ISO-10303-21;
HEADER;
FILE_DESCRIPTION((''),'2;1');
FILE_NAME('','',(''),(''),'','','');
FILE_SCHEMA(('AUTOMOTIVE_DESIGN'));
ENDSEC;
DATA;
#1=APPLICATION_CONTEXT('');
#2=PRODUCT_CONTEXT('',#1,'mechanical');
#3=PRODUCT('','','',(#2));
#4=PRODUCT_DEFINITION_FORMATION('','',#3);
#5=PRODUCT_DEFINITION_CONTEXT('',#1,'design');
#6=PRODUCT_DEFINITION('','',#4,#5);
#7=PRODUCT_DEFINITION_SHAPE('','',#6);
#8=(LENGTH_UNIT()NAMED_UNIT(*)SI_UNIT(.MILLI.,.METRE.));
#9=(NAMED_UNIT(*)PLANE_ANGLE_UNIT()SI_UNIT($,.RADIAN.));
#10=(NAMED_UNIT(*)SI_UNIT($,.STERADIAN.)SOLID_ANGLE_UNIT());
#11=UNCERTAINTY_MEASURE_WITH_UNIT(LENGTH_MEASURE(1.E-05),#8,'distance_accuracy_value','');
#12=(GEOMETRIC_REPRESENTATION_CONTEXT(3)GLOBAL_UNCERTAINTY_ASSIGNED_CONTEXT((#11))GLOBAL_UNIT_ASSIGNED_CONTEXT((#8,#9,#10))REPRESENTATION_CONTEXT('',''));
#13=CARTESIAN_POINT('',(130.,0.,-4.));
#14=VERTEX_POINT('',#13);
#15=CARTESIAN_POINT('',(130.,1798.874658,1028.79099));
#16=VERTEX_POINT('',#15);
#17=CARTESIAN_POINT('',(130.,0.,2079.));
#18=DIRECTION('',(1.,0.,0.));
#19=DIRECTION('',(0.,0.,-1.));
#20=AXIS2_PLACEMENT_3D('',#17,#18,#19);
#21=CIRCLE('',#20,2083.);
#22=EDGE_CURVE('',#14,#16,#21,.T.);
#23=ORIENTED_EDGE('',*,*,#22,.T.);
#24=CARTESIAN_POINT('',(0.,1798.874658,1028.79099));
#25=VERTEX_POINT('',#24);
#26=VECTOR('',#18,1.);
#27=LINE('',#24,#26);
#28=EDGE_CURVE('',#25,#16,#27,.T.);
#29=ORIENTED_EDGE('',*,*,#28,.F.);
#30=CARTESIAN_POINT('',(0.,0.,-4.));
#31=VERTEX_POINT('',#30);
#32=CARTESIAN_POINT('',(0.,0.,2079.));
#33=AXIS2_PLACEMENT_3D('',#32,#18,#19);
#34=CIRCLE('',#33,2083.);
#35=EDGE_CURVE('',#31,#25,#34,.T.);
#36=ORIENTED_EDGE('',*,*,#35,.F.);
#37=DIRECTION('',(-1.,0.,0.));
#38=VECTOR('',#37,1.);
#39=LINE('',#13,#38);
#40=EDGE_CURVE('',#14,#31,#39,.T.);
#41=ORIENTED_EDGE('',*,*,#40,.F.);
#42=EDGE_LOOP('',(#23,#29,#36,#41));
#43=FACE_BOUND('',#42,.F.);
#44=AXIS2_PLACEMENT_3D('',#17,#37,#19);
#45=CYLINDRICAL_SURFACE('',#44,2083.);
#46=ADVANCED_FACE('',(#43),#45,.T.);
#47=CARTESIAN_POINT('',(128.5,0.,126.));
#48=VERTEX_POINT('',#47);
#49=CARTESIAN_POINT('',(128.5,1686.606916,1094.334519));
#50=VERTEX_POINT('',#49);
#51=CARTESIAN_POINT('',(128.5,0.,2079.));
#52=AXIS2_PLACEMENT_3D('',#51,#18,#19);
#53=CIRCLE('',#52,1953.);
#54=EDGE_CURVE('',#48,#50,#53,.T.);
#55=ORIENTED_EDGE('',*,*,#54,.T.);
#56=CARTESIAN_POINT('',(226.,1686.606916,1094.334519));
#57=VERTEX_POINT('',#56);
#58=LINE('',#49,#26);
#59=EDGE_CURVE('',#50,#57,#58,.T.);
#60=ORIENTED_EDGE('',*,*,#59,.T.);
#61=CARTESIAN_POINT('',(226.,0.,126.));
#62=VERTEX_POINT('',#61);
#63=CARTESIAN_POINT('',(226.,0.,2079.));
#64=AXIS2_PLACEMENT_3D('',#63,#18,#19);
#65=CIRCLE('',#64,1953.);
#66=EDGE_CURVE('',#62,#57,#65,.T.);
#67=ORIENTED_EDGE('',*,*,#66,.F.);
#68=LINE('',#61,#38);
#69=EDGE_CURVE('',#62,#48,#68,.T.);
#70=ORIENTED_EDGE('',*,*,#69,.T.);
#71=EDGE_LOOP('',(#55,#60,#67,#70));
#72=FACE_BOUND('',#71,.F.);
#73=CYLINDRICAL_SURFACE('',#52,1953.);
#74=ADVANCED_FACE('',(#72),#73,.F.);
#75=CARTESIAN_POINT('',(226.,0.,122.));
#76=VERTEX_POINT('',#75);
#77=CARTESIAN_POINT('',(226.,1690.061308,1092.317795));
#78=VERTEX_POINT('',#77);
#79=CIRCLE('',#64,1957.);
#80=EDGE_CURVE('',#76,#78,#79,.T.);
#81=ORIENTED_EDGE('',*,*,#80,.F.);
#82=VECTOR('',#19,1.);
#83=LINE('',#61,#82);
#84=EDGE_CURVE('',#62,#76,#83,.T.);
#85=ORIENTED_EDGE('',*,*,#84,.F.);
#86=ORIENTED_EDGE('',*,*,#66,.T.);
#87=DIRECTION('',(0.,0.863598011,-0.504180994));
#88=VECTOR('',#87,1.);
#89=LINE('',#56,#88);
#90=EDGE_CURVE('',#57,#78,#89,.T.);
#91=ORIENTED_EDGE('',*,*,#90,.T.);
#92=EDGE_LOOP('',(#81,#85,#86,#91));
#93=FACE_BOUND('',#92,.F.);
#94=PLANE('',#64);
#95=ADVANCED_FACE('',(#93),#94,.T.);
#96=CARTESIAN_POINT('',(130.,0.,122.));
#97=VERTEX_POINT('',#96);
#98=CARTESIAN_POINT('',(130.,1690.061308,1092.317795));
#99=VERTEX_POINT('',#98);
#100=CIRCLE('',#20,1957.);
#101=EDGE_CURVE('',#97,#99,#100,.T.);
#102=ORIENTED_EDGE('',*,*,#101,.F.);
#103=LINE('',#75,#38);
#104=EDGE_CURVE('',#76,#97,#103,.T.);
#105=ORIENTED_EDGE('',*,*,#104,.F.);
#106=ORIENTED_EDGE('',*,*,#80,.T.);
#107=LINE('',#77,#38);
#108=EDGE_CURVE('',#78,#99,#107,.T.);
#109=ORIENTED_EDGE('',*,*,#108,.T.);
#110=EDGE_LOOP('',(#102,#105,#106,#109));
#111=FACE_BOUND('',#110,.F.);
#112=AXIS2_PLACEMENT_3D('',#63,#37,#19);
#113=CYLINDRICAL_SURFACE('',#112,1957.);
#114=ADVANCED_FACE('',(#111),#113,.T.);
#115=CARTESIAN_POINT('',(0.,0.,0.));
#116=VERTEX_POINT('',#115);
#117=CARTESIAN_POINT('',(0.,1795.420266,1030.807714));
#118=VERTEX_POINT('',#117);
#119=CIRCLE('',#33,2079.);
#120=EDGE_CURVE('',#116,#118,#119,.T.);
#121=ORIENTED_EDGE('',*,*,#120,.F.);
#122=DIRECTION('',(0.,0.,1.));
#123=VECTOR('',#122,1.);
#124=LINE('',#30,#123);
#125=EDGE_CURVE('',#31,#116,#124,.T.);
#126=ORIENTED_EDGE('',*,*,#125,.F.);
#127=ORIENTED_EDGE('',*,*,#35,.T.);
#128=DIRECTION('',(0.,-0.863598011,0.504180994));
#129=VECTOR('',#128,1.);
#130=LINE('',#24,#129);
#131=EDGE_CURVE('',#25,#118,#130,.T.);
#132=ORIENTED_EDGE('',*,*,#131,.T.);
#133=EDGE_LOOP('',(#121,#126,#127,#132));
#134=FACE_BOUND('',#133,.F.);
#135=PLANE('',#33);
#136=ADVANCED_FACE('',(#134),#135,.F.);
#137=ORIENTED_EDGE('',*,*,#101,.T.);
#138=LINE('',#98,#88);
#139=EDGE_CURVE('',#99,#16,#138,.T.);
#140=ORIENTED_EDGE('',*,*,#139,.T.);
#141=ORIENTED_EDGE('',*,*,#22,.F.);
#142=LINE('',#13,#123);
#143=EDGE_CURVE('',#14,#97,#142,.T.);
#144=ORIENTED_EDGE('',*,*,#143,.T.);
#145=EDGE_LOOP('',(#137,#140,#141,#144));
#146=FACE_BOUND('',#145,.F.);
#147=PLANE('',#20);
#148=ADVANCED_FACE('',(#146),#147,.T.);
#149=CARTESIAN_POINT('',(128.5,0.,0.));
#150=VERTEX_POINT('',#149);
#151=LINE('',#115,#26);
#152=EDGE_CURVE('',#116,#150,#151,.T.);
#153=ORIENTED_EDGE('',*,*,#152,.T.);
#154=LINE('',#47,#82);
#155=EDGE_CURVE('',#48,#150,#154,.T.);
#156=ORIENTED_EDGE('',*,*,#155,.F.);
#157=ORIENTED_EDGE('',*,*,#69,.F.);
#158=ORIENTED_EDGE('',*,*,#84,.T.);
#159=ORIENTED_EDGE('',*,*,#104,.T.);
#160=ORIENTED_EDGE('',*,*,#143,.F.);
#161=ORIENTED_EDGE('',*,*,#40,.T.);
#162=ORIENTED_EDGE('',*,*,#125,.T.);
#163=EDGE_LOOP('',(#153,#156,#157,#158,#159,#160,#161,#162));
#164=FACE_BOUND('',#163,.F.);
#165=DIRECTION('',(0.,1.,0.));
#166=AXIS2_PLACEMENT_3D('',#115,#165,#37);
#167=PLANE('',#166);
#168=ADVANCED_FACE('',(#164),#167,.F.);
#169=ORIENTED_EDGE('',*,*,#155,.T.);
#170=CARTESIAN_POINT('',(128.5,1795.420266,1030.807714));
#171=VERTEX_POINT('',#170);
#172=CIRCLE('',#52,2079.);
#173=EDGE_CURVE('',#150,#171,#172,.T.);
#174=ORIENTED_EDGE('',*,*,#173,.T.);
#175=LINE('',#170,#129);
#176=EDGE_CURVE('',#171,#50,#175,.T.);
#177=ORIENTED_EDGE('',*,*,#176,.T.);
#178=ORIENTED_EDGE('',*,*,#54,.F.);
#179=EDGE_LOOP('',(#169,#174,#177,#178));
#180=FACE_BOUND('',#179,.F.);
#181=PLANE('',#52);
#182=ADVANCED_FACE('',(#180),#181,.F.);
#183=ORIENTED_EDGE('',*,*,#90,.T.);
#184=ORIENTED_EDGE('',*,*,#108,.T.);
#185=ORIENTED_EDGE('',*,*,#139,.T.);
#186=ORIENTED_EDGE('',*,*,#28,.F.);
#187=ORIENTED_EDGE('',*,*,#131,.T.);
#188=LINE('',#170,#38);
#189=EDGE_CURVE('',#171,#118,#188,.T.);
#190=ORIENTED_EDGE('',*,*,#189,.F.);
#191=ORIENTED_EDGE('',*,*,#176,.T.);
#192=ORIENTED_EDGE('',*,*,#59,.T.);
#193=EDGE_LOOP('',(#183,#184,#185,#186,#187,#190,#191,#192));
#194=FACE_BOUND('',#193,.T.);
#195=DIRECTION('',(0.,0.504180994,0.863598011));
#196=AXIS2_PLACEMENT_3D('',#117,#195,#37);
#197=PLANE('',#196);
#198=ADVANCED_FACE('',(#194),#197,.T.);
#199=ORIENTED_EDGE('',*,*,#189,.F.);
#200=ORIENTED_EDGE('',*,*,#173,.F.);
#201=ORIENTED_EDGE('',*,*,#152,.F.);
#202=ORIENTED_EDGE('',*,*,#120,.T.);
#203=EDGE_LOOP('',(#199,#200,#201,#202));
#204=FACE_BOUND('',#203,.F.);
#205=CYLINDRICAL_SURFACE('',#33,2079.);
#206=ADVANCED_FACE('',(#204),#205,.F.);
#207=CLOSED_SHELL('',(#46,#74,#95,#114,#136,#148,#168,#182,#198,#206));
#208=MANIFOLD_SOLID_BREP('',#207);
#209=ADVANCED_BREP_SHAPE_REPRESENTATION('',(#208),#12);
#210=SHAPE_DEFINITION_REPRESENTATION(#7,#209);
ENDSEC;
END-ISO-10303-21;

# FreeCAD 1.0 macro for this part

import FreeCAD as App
import Part
import Sketcher
from FreeCAD import Vector
Q = App.Units.Quantity


def add_polygon(sketch, points):
    """Adds a closed chain of lines whose ends are joined by coincident constraints."""
    first, n = sketch.GeometryCount, len(points)
    for a, b in zip(points, points[1:] + points[:1]):
        sketch.addGeometry(Part.LineSegment(App.Vector(*a, 0), App.Vector(*b, 0)), False)
    for i in range(n):
        sketch.addConstraint(Sketcher.Constraint("Coincident", first + i, 2, first + (i + 1) % n, 1))

doc = App.newDocument("Part")
body = doc.addObject("PartDesign::Body", "Body")

sketch1 = body.newObject("Sketcher::SketchObject", "Sketch")
sketch1.AttachmentSupport = (doc.getObject("XZ_Plane"), [""])
sketch1.MapMode = "FlatFace"
add_polygon(sketch1, [(0, -4), (0, 0), (128.5, 0), (128.5, 126), (226, 126), (226, 122), (130, 122), (130, -4)])
sketch1.addGeometry(Part.LineSegment(Vector(0, 2079, 0), Vector(226, 2079, 0)), True)
sketch1.addConstraint(Sketcher.Constraint("Vertical", 0))
sketch1.addConstraint(Sketcher.Constraint("Horizontal", 1))
sketch1.addConstraint(Sketcher.Constraint("Vertical", 2))
sketch1.addConstraint(Sketcher.Constraint("Horizontal", 3))
sketch1.addConstraint(Sketcher.Constraint("Vertical", 4))
sketch1.addConstraint(Sketcher.Constraint("Horizontal", 5))
sketch1.addConstraint(Sketcher.Constraint("Vertical", 6))
sketch1.addConstraint(Sketcher.Constraint("Horizontal", 7))
sketch1.addConstraint(Sketcher.Constraint("Horizontal", 8))
sketch1.addConstraint(Sketcher.Constraint("Coincident", 0, 2, -1, 1))
sketch1.addConstraint(Sketcher.Constraint("PointOnObject", 8, 1, -2))
sketch1.addConstraint(Sketcher.Constraint("Vertical", 4, 2, 8, 2))
sketch1.addConstraint(Sketcher.Constraint("Equal", 0, 4))
sketch1.addConstraint(Sketcher.Constraint("DistanceX", 7, 2, 7, 1, Q("130 mm")))
sketch1.addConstraint(Sketcher.Constraint("DistanceY", 0, 1, 0, 2, Q("4 mm")))
sketch1.addConstraint(Sketcher.Constraint("DistanceX", 3, 1, 3, 2, Q("97.5 mm")))
sketch1.addConstraint(Sketcher.Constraint("DistanceY", 6, 2, 2, 2, Q("130 mm")))
sketch1.addConstraint(Sketcher.Constraint("DistanceX", 2, 2, 5, 2, Q("1.5 mm")))
sketch1.addConstraint(Sketcher.Constraint("DistanceY", -1, 1, 8, 1, Q("2079 mm")))
revolution = body.newObject("PartDesign::Revolution", "Revolution")
revolution.Profile = sketch1
revolution.ReferenceAxis = (sketch1, ["Axis0"])
revolution.Angle = 59.723

doc.recompute()
